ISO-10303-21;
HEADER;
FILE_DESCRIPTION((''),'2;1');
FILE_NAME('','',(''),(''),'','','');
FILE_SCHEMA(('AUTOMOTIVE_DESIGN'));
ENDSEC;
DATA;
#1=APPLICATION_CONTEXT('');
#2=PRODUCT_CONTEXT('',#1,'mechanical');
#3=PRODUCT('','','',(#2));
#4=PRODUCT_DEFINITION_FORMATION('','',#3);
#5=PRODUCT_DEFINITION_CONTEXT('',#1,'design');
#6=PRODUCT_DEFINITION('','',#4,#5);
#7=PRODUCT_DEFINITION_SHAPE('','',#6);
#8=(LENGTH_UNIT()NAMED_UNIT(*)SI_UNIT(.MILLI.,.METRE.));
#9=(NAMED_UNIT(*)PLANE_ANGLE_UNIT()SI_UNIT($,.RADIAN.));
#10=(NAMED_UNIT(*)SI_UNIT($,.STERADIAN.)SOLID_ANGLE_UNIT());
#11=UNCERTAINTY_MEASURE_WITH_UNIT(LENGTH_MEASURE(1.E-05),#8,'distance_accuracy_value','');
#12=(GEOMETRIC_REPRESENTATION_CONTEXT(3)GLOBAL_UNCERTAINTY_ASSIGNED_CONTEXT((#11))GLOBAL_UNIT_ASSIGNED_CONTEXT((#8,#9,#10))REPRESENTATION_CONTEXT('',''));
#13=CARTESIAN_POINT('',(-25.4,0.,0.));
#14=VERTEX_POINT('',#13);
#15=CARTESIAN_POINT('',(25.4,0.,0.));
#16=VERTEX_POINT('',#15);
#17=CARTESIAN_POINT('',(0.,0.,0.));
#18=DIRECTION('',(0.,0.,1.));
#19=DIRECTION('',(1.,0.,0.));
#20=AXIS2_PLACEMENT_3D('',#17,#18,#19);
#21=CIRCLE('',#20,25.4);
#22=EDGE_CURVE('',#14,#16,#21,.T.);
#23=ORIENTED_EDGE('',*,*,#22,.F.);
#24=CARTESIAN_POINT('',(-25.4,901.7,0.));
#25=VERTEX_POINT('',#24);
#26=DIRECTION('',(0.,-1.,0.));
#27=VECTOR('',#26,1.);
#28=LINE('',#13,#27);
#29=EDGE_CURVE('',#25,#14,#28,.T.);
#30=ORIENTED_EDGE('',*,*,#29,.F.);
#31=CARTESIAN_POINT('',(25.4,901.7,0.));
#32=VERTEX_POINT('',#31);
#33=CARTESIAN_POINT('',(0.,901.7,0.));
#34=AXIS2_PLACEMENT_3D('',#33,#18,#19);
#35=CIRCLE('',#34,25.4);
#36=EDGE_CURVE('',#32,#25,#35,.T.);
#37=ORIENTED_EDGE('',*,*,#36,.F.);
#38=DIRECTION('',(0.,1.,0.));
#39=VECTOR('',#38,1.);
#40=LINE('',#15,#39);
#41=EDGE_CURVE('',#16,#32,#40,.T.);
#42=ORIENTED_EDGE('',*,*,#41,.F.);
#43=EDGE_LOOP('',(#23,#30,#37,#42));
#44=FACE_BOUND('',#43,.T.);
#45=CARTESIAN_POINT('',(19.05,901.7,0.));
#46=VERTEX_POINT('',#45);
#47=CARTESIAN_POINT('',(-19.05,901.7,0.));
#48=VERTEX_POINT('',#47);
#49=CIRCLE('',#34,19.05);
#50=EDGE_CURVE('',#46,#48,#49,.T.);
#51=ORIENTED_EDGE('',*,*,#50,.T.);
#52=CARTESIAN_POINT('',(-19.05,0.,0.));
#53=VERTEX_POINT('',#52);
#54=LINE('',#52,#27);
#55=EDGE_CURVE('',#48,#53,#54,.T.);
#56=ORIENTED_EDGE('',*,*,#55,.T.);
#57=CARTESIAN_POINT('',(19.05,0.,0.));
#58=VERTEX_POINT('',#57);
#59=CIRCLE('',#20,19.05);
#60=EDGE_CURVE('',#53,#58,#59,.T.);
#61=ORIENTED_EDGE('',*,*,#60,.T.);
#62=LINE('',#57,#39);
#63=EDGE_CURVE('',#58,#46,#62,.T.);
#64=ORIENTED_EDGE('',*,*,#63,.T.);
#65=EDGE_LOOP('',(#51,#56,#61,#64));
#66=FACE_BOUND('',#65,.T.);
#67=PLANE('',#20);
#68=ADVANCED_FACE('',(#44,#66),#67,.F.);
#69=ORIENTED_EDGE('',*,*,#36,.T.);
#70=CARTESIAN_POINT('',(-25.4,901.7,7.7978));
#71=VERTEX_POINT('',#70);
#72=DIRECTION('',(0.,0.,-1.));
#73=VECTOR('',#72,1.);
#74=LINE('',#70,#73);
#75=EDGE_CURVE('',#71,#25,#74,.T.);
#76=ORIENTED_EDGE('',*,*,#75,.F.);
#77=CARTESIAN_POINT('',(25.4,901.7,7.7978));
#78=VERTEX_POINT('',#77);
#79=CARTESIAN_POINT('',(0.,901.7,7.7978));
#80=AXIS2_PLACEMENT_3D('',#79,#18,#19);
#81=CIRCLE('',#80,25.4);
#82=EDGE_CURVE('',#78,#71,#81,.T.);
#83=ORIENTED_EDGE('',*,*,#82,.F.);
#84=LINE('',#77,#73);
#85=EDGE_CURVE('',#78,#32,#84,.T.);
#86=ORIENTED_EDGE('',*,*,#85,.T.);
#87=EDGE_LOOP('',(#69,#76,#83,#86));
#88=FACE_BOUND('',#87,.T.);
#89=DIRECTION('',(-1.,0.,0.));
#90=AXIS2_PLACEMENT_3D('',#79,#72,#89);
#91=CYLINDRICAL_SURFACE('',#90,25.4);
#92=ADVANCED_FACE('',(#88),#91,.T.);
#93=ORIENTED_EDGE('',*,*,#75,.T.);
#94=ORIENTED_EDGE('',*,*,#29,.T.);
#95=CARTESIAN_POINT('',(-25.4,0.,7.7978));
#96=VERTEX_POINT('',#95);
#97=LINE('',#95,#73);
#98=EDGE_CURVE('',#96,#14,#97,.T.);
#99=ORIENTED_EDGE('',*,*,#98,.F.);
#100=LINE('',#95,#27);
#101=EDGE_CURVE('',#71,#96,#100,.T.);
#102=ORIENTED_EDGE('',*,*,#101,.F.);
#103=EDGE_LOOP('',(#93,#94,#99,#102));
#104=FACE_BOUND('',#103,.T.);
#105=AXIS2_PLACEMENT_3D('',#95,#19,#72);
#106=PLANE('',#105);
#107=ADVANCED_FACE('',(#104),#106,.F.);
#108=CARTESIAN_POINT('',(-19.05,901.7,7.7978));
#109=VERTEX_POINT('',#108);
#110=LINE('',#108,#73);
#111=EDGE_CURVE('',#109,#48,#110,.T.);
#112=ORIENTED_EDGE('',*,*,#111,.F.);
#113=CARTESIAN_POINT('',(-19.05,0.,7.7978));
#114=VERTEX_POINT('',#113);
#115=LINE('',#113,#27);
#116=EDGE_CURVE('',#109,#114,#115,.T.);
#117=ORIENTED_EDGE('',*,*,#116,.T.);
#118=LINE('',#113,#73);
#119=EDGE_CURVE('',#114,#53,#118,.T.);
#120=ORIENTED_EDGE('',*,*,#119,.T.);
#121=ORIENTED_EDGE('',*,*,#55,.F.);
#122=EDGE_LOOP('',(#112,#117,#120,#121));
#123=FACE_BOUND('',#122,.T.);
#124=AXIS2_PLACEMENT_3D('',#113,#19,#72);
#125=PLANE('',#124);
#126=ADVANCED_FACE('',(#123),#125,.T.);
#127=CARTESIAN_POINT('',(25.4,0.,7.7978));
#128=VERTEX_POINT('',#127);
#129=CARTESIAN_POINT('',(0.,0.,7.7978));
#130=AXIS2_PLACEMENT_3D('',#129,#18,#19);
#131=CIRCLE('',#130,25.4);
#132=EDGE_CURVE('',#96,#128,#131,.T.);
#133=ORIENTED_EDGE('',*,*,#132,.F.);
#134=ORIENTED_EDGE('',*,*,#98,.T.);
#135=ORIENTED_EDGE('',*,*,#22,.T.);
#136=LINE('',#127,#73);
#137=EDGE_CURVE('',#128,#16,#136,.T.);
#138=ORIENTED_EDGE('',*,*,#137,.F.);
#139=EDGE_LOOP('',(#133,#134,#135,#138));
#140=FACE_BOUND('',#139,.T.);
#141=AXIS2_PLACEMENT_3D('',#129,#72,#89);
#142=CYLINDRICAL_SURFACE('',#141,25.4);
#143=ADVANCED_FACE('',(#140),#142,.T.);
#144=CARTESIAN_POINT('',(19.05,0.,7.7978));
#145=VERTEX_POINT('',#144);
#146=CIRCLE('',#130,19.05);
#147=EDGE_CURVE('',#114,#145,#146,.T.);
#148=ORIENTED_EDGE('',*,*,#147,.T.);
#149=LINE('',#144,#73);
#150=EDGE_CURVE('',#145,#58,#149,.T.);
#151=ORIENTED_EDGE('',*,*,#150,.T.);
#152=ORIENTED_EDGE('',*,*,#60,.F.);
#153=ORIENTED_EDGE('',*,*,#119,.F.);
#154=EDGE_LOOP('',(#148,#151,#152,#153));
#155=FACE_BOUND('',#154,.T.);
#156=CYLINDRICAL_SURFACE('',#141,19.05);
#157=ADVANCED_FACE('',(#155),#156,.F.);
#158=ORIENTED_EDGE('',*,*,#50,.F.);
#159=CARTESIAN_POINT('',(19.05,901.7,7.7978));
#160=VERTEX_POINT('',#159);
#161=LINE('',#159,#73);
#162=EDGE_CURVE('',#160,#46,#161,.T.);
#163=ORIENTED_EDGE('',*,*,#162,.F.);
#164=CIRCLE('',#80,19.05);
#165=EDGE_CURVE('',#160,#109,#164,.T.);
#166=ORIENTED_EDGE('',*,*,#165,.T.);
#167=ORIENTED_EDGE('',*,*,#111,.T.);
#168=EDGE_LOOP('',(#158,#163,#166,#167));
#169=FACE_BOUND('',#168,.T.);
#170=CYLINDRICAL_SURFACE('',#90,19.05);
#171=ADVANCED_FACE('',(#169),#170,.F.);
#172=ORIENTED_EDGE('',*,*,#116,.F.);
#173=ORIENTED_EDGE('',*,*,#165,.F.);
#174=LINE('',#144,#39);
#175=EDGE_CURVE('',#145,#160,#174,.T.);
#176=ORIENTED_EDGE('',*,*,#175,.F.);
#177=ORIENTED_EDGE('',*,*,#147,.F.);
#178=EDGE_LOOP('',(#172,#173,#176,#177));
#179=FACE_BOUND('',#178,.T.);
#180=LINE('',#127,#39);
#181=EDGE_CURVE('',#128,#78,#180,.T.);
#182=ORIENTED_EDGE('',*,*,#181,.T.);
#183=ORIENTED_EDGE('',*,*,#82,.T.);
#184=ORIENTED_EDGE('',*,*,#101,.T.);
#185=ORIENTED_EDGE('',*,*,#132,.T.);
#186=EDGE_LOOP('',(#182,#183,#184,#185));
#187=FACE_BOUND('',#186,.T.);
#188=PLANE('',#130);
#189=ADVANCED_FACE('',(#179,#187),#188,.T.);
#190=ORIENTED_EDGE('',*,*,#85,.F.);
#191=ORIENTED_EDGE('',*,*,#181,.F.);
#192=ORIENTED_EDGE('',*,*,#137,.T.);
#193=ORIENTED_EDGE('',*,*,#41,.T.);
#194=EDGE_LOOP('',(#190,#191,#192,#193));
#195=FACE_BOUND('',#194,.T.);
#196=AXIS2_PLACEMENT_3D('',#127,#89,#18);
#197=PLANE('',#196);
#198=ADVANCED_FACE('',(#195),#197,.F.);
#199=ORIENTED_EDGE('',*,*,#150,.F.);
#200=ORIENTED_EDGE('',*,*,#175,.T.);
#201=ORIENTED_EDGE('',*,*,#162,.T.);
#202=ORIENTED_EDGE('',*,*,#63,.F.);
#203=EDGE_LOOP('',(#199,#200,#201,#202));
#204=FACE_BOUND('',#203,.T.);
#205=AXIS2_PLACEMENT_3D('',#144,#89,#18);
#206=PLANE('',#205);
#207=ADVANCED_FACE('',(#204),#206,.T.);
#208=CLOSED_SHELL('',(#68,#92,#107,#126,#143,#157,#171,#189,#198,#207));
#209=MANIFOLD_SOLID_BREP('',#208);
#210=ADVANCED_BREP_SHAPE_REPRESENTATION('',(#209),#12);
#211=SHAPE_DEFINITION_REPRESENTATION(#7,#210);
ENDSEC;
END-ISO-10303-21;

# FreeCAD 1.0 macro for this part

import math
import FreeCAD as App
import Part
import Sketcher

V = App.Vector
Q = App.Units.Quantity

doc = App.newDocument("Part")
body = doc.addObject("PartDesign::Body", "Body")

# Sketch on XY plane
sketch1 = body.newObject("Sketcher::SketchObject", "Sketch")
sketch1.AttachmentSupport = (doc.getObject("XY_Plane"), [""])
sketch1.MapMode = "FlatFace"
sketch1.addGeometry([
    Part.LineSegment(V(-25, 902, 0), V(-25, 0, 0)),  # 0
    Part.ArcOfCircle(Part.Circle(V(0, 0, 0), V(0, 0, 1), 25), math.radians(180), math.radians(360)),  # 1
    Part.LineSegment(V(25, 0, 0), V(25, 902, 0)),  # 2
    Part.ArcOfCircle(Part.Circle(V(0, 902, 0), V(0, 0, 1), 25), math.radians(0), math.radians(180)),  # 3
    Part.LineSegment(V(-19, 0, 0), V(-19, 902, 0)),  # 4
    Part.ArcOfCircle(Part.Circle(V(0, 902, 0), V(0, 0, 1), 19), math.radians(0), math.radians(180)),  # 5
    Part.LineSegment(V(19, 902, 0), V(19, 0, 0)),  # 6
    Part.ArcOfCircle(Part.Circle(V(0, 0, 0), V(0, 0, 1), 19), math.radians(180), math.radians(360)),  # 7
], False)
sketch1.addConstraint([
    Sketcher.Constraint("Tangent", 0, 2, 1, 1),
    Sketcher.Constraint("Tangent", 1, 2, 2, 1),
    Sketcher.Constraint("Tangent", 2, 2, 3, 1),
    Sketcher.Constraint("Tangent", 3, 2, 0, 1),
    Sketcher.Constraint("Tangent", 4, 2, 5, 2),
    Sketcher.Constraint("Tangent", 5, 1, 6, 1),
    Sketcher.Constraint("Tangent", 6, 2, 7, 2),
    Sketcher.Constraint("Tangent", 7, 1, 4, 1),
    Sketcher.Constraint("Vertical", 0),
    Sketcher.Constraint("Vertical", 2),
    Sketcher.Constraint("Vertical", 4),
    Sketcher.Constraint("Vertical", 6),
    Sketcher.Constraint("Coincident", 1, 3, -1, 1),
    Sketcher.Constraint("Coincident", 7, 3, -1, 1),
    Sketcher.Constraint("Horizontal", 5, 3, 2, 2),
    Sketcher.Constraint("Radius", 1, Q("1 in")),
    Sketcher.Constraint("Radius", 5, Q("0.75 in")),
    Sketcher.Constraint("DistanceY", 0, 2, 0, 1, Q("35.5 in")),
])
pad1 = body.newObject("PartDesign::Pad", "Pad")
pad1.Profile = sketch1
pad1.Length = Q("0.307 in")

doc.recompute()
